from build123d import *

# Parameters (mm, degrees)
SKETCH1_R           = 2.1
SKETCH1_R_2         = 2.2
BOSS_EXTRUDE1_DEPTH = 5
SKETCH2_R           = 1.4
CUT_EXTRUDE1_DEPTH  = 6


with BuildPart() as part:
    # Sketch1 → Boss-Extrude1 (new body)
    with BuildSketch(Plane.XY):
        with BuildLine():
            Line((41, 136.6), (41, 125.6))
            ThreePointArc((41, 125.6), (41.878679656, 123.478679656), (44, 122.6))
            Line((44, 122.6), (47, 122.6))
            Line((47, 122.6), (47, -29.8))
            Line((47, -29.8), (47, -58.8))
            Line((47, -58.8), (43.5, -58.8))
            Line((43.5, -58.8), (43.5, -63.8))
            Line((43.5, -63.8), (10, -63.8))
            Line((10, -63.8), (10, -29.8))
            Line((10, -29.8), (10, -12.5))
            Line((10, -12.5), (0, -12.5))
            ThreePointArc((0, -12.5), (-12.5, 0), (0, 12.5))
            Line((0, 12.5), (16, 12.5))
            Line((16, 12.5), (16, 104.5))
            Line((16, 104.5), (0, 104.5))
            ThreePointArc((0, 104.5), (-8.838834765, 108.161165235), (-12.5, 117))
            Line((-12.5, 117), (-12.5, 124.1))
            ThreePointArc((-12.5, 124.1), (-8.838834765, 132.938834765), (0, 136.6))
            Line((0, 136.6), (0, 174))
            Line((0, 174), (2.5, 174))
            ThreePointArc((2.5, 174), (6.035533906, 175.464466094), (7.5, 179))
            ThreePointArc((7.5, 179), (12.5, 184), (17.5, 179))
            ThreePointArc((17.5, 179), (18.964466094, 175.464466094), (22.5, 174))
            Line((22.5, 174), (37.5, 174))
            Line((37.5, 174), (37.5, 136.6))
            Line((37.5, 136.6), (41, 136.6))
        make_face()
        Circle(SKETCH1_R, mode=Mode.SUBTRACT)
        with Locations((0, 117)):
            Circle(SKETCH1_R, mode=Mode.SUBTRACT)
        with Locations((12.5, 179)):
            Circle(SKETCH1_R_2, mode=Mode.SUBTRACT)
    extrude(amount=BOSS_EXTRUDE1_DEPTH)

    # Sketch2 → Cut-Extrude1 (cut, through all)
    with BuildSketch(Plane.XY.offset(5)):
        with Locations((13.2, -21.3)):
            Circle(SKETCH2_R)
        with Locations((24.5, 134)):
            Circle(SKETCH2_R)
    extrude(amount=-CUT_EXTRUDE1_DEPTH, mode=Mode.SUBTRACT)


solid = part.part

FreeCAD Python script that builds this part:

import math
import FreeCAD as App
import Part
import Sketcher
from FreeCAD import Vector
Q = App.Units.Quantity

doc = App.newDocument("Part")
body = doc.addObject("PartDesign::Body", "Body")

# Sketch on XY plane
sketch1 = body.newObject("Sketcher::SketchObject", "Sketch")
sketch1.AttachmentSupport = (doc.getObject("XY_Plane"), [""])
sketch1.MapMode = "FlatFace"
sketch1.addGeometry([
    Part.LineSegment(Vector(41, 125.6, 0), Vector(41, 136.6, 0)),  # 0
    Part.LineSegment(Vector(41, 136.6, 0), Vector(37.5, 136.6, 0)),  # 1
    Part.LineSegment(Vector(37.5, 136.6, 0), Vector(37.5, 174, 0)),  # 2
    Part.LineSegment(Vector(37.5, 174, 0), Vector(22.5, 174, 0)),  # 3
    Part.ArcOfCircle(Part.Circle(Vector(22.5, 179, 0), Vector(0, 0, 1), 5), math.radians(180), math.radians(270)),  # 4
    Part.ArcOfCircle(Part.Circle(Vector(12.5, 179, 0), Vector(0, 0, 1), 5), math.radians(0), math.radians(180)),  # 5
    Part.ArcOfCircle(Part.Circle(Vector(2.5, 179, 0), Vector(0, 0, 1), 5), math.radians(-90), math.radians(0)),  # 6
    Part.LineSegment(Vector(2.5, 174, 0), Vector(0, 174, 0)),  # 7
    Part.LineSegment(Vector(0, 174, 0), Vector(0, 136.6, 0)),  # 8
    Part.ArcOfCircle(Part.Circle(Vector(0, 124.1, 0), Vector(0, 0, 1), 12.5), math.radians(90), math.radians(180)),  # 9
    Part.LineSegment(Vector(-12.5, 124.1, 0), Vector(-12.5, 117, 0)),  # 10
    Part.ArcOfCircle(Part.Circle(Vector(0, 117, 0), Vector(0, 0, 1), 12.5), math.radians(180), math.radians(270)),  # 11
    Part.LineSegment(Vector(0, 104.5, 0), Vector(16, 104.5, 0)),  # 12
    Part.LineSegment(Vector(16, 104.5, 0), Vector(16, 12.5, 0)),  # 13
    Part.LineSegment(Vector(16, 12.5, 0), Vector(0, 12.5, 0)),  # 14
    Part.ArcOfCircle(Part.Circle(Vector(0, 0, 0), Vector(0, 0, 1), 12.5), math.radians(90), math.radians(270)),  # 15
    Part.LineSegment(Vector(0, -12.5, 0), Vector(10, -12.5, 0)),  # 16
    Part.LineSegment(Vector(10, -12.5, 0), Vector(10, -63.8, 0)),  # 17
    Part.LineSegment(Vector(10, -63.8, 0), Vector(43.5, -63.8, 0)),  # 18
    Part.LineSegment(Vector(43.5, -63.8, 0), Vector(43.5, -58.8, 0)),  # 19
    Part.LineSegment(Vector(43.5, -58.8, 0), Vector(47, -58.8, 0)),  # 20
    Part.LineSegment(Vector(47, -58.8, 0), Vector(47, 122.6, 0)),  # 21
    Part.LineSegment(Vector(47, 122.6, 0), Vector(44, 122.6, 0)),  # 22
    Part.ArcOfCircle(Part.Circle(Vector(44, 125.6, 0), Vector(0, 0, 1), 3), math.radians(180), math.radians(270)),  # 23
    Part.Circle(Vector(0, 0, 0), Vector(0, 0, 1), 2.1),  # 24
    Part.Circle(Vector(12.5, 179, 0), Vector(0, 0, 1), 2.2),  # 25
    Part.Circle(Vector(0, 117, 0), Vector(0, 0, 1), 2.1),  # 26
], False)
sketch1.addConstraint([
    Sketcher.Constraint("Coincident", 0, 2, 1, 1),
    Sketcher.Constraint("Coincident", 1, 2, 2, 1),
    Sketcher.Constraint("Coincident", 2, 2, 3, 1),
    Sketcher.Constraint("Tangent", 3, 2, 4, 2),
    Sketcher.Constraint("Tangent", 4, 1, 5, 1),
    Sketcher.Constraint("Tangent", 5, 2, 6, 2),
    Sketcher.Constraint("Tangent", 6, 1, 7, 1),
    Sketcher.Constraint("Coincident", 7, 2, 8, 1),
    Sketcher.Constraint("Coincident", 8, 2, 9, 1),
    Sketcher.Constraint("Tangent", 9, 2, 10, 1),
    Sketcher.Constraint("Tangent", 10, 2, 11, 1),
    Sketcher.Constraint("Tangent", 11, 2, 12, 1),
    Sketcher.Constraint("Coincident", 12, 2, 13, 1),
    Sketcher.Constraint("Coincident", 13, 2, 14, 1),
    Sketcher.Constraint("Tangent", 14, 2, 15, 1),
    Sketcher.Constraint("Tangent", 15, 2, 16, 1),
    Sketcher.Constraint("Coincident", 16, 2, 17, 1),
    Sketcher.Constraint("Coincident", 17, 2, 18, 1),
    Sketcher.Constraint("Coincident", 18, 2, 19, 1),
    Sketcher.Constraint("Coincident", 19, 2, 20, 1),
    Sketcher.Constraint("Coincident", 20, 2, 21, 1),
    Sketcher.Constraint("Coincident", 21, 2, 22, 1),
    Sketcher.Constraint("Tangent", 22, 2, 23, 2),
    Sketcher.Constraint("Tangent", 23, 1, 0, 1),
    Sketcher.Constraint("Vertical", 0),
    Sketcher.Constraint("Horizontal", 1),
    Sketcher.Constraint("Vertical", 2),
    Sketcher.Constraint("Horizontal", 3),
    Sketcher.Constraint("Horizontal", 7),
    Sketcher.Constraint("Vertical", 8),
    Sketcher.Constraint("Vertical", 10),
    Sketcher.Constraint("Horizontal", 12),
    Sketcher.Constraint("Vertical", 13),
    Sketcher.Constraint("Horizontal", 14),
    Sketcher.Constraint("Horizontal", 16),
    Sketcher.Constraint("Vertical", 17),
    Sketcher.Constraint("Horizontal", 18),
    Sketcher.Constraint("Vertical", 19),
    Sketcher.Constraint("Horizontal", 20),
    Sketcher.Constraint("Vertical", 21),
    Sketcher.Constraint("Horizontal", 22),
    Sketcher.Constraint("Coincident", 15, 3, -1, 1),
    Sketcher.Constraint("Coincident", 24, 3, -1, 1),
    Sketcher.Constraint("Coincident", 25, 3, 5, 3),
    Sketcher.Constraint("Coincident", 26, 3, 11, 3),
    Sketcher.Constraint("Equal", 4, 5),
    Sketcher.Constraint("Equal", 5, 6),
    Sketcher.Constraint("Equal", 9, 11),
    Sketcher.Constraint("Equal", 11, 15),
    Sketcher.Constraint("Equal", 24, 26),
    Sketcher.Constraint("PointOnObject", 9, 3, -2),
    Sketcher.Constraint("PointOnObject", 7, 2, -2),
    Sketcher.Constraint("Horizontal", 4, 3, 5, 3),
    Sketcher.Constraint("Horizontal", 5, 3, 6, 3),
    Sketcher.Constraint("Horizontal", 1, 2, 8, 2),
    Sketcher.Constraint("Equal", 1, 20),
    Sketcher.Constraint("Radius", 4, Q("5 mm")),
    Sketcher.Constraint("Radius", 23, Q("3 mm")),
    Sketcher.Constraint("Diameter", 24, Q("4.2 mm")),
    Sketcher.Constraint("Diameter", 25, Q("4.4 mm")),
    Sketcher.Constraint("Radius", 9, Q("12.5 mm")),
    Sketcher.Constraint("DistanceX", 3, 2, 3, 1, Q("15 mm")),
    Sketcher.Constraint("DistanceX", 12, 1, 12, 2, Q("16 mm")),
    Sketcher.Constraint("DistanceX", 16, 1, 16, 2, Q("10 mm")),
    Sketcher.Constraint("DistanceX", 22, 2, 22, 1, Q("3 mm")),
    Sketcher.Constraint("DistanceY", 0, 1, 0, 2, Q("11 mm")),
    Sketcher.Constraint("DistanceY", 13, 2, 13, 1, Q("92 mm")),
    Sketcher.Constraint("DistanceY", 19, 1, 19, 2, Q("5 mm")),
    Sketcher.Constraint("DistanceX", 1, 2, 1, 1, Q("3.5 mm")),
    Sketcher.Constraint("DistanceX", 7, 2, 7, 1, Q("2.5 mm")),
    Sketcher.Constraint("DistanceY", 2, 1, 2, 2, Q("37.4 mm")),
    Sketcher.Constraint("DistanceY", 10, 2, 10, 1, Q("7.1 mm")),
    Sketcher.Constraint("DistanceY", 17, 2, 17, 1, Q("51.3 mm")),
])
pad1 = body.newObject("PartDesign::Pad", "Pad")
pad1.Profile = sketch1
pad1.Length = 5

# Sketch on XY plane
sketch2 = body.newObject("Sketcher::SketchObject", "Sketch001")
sketch2.AttachmentSupport = (doc.getObject("XY_Plane"), [""])
sketch2.MapMode = "FlatFace"
sketch2.AttachmentOffset = App.Placement(Vector(0, 0, 5), App.Rotation())
sketch2.addGeometry([
    Part.Circle(Vector(13.2, -21.3, 0), Vector(0, 0, 1), 1.4),
    Part.Circle(Vector(24.5, 134, 0), Vector(0, 0, 1), 1.4),
], False)
sketch2.addConstraint([
    Sketcher.Constraint("Equal", 0, 1),
    Sketcher.Constraint("Diameter", 0, Q("2.8 mm")),
    Sketcher.Constraint("DistanceY", -1, 1, 1, 3, Q("134 mm")),
    Sketcher.Constraint("DistanceX", -1, 1, 0, 3, Q("13.2 mm")),
    Sketcher.Constraint("DistanceY", 0, 3, -1, 1, Q("21.3 mm")),
    Sketcher.Constraint("DistanceX", -1, 1, 1, 3, Q("24.5 mm")),
])
pocket1 = body.newObject("PartDesign::Pocket", "Pocket")
pocket1.Profile = sketch2
pocket1.Type = "ThroughAll"

doc.recompute()
